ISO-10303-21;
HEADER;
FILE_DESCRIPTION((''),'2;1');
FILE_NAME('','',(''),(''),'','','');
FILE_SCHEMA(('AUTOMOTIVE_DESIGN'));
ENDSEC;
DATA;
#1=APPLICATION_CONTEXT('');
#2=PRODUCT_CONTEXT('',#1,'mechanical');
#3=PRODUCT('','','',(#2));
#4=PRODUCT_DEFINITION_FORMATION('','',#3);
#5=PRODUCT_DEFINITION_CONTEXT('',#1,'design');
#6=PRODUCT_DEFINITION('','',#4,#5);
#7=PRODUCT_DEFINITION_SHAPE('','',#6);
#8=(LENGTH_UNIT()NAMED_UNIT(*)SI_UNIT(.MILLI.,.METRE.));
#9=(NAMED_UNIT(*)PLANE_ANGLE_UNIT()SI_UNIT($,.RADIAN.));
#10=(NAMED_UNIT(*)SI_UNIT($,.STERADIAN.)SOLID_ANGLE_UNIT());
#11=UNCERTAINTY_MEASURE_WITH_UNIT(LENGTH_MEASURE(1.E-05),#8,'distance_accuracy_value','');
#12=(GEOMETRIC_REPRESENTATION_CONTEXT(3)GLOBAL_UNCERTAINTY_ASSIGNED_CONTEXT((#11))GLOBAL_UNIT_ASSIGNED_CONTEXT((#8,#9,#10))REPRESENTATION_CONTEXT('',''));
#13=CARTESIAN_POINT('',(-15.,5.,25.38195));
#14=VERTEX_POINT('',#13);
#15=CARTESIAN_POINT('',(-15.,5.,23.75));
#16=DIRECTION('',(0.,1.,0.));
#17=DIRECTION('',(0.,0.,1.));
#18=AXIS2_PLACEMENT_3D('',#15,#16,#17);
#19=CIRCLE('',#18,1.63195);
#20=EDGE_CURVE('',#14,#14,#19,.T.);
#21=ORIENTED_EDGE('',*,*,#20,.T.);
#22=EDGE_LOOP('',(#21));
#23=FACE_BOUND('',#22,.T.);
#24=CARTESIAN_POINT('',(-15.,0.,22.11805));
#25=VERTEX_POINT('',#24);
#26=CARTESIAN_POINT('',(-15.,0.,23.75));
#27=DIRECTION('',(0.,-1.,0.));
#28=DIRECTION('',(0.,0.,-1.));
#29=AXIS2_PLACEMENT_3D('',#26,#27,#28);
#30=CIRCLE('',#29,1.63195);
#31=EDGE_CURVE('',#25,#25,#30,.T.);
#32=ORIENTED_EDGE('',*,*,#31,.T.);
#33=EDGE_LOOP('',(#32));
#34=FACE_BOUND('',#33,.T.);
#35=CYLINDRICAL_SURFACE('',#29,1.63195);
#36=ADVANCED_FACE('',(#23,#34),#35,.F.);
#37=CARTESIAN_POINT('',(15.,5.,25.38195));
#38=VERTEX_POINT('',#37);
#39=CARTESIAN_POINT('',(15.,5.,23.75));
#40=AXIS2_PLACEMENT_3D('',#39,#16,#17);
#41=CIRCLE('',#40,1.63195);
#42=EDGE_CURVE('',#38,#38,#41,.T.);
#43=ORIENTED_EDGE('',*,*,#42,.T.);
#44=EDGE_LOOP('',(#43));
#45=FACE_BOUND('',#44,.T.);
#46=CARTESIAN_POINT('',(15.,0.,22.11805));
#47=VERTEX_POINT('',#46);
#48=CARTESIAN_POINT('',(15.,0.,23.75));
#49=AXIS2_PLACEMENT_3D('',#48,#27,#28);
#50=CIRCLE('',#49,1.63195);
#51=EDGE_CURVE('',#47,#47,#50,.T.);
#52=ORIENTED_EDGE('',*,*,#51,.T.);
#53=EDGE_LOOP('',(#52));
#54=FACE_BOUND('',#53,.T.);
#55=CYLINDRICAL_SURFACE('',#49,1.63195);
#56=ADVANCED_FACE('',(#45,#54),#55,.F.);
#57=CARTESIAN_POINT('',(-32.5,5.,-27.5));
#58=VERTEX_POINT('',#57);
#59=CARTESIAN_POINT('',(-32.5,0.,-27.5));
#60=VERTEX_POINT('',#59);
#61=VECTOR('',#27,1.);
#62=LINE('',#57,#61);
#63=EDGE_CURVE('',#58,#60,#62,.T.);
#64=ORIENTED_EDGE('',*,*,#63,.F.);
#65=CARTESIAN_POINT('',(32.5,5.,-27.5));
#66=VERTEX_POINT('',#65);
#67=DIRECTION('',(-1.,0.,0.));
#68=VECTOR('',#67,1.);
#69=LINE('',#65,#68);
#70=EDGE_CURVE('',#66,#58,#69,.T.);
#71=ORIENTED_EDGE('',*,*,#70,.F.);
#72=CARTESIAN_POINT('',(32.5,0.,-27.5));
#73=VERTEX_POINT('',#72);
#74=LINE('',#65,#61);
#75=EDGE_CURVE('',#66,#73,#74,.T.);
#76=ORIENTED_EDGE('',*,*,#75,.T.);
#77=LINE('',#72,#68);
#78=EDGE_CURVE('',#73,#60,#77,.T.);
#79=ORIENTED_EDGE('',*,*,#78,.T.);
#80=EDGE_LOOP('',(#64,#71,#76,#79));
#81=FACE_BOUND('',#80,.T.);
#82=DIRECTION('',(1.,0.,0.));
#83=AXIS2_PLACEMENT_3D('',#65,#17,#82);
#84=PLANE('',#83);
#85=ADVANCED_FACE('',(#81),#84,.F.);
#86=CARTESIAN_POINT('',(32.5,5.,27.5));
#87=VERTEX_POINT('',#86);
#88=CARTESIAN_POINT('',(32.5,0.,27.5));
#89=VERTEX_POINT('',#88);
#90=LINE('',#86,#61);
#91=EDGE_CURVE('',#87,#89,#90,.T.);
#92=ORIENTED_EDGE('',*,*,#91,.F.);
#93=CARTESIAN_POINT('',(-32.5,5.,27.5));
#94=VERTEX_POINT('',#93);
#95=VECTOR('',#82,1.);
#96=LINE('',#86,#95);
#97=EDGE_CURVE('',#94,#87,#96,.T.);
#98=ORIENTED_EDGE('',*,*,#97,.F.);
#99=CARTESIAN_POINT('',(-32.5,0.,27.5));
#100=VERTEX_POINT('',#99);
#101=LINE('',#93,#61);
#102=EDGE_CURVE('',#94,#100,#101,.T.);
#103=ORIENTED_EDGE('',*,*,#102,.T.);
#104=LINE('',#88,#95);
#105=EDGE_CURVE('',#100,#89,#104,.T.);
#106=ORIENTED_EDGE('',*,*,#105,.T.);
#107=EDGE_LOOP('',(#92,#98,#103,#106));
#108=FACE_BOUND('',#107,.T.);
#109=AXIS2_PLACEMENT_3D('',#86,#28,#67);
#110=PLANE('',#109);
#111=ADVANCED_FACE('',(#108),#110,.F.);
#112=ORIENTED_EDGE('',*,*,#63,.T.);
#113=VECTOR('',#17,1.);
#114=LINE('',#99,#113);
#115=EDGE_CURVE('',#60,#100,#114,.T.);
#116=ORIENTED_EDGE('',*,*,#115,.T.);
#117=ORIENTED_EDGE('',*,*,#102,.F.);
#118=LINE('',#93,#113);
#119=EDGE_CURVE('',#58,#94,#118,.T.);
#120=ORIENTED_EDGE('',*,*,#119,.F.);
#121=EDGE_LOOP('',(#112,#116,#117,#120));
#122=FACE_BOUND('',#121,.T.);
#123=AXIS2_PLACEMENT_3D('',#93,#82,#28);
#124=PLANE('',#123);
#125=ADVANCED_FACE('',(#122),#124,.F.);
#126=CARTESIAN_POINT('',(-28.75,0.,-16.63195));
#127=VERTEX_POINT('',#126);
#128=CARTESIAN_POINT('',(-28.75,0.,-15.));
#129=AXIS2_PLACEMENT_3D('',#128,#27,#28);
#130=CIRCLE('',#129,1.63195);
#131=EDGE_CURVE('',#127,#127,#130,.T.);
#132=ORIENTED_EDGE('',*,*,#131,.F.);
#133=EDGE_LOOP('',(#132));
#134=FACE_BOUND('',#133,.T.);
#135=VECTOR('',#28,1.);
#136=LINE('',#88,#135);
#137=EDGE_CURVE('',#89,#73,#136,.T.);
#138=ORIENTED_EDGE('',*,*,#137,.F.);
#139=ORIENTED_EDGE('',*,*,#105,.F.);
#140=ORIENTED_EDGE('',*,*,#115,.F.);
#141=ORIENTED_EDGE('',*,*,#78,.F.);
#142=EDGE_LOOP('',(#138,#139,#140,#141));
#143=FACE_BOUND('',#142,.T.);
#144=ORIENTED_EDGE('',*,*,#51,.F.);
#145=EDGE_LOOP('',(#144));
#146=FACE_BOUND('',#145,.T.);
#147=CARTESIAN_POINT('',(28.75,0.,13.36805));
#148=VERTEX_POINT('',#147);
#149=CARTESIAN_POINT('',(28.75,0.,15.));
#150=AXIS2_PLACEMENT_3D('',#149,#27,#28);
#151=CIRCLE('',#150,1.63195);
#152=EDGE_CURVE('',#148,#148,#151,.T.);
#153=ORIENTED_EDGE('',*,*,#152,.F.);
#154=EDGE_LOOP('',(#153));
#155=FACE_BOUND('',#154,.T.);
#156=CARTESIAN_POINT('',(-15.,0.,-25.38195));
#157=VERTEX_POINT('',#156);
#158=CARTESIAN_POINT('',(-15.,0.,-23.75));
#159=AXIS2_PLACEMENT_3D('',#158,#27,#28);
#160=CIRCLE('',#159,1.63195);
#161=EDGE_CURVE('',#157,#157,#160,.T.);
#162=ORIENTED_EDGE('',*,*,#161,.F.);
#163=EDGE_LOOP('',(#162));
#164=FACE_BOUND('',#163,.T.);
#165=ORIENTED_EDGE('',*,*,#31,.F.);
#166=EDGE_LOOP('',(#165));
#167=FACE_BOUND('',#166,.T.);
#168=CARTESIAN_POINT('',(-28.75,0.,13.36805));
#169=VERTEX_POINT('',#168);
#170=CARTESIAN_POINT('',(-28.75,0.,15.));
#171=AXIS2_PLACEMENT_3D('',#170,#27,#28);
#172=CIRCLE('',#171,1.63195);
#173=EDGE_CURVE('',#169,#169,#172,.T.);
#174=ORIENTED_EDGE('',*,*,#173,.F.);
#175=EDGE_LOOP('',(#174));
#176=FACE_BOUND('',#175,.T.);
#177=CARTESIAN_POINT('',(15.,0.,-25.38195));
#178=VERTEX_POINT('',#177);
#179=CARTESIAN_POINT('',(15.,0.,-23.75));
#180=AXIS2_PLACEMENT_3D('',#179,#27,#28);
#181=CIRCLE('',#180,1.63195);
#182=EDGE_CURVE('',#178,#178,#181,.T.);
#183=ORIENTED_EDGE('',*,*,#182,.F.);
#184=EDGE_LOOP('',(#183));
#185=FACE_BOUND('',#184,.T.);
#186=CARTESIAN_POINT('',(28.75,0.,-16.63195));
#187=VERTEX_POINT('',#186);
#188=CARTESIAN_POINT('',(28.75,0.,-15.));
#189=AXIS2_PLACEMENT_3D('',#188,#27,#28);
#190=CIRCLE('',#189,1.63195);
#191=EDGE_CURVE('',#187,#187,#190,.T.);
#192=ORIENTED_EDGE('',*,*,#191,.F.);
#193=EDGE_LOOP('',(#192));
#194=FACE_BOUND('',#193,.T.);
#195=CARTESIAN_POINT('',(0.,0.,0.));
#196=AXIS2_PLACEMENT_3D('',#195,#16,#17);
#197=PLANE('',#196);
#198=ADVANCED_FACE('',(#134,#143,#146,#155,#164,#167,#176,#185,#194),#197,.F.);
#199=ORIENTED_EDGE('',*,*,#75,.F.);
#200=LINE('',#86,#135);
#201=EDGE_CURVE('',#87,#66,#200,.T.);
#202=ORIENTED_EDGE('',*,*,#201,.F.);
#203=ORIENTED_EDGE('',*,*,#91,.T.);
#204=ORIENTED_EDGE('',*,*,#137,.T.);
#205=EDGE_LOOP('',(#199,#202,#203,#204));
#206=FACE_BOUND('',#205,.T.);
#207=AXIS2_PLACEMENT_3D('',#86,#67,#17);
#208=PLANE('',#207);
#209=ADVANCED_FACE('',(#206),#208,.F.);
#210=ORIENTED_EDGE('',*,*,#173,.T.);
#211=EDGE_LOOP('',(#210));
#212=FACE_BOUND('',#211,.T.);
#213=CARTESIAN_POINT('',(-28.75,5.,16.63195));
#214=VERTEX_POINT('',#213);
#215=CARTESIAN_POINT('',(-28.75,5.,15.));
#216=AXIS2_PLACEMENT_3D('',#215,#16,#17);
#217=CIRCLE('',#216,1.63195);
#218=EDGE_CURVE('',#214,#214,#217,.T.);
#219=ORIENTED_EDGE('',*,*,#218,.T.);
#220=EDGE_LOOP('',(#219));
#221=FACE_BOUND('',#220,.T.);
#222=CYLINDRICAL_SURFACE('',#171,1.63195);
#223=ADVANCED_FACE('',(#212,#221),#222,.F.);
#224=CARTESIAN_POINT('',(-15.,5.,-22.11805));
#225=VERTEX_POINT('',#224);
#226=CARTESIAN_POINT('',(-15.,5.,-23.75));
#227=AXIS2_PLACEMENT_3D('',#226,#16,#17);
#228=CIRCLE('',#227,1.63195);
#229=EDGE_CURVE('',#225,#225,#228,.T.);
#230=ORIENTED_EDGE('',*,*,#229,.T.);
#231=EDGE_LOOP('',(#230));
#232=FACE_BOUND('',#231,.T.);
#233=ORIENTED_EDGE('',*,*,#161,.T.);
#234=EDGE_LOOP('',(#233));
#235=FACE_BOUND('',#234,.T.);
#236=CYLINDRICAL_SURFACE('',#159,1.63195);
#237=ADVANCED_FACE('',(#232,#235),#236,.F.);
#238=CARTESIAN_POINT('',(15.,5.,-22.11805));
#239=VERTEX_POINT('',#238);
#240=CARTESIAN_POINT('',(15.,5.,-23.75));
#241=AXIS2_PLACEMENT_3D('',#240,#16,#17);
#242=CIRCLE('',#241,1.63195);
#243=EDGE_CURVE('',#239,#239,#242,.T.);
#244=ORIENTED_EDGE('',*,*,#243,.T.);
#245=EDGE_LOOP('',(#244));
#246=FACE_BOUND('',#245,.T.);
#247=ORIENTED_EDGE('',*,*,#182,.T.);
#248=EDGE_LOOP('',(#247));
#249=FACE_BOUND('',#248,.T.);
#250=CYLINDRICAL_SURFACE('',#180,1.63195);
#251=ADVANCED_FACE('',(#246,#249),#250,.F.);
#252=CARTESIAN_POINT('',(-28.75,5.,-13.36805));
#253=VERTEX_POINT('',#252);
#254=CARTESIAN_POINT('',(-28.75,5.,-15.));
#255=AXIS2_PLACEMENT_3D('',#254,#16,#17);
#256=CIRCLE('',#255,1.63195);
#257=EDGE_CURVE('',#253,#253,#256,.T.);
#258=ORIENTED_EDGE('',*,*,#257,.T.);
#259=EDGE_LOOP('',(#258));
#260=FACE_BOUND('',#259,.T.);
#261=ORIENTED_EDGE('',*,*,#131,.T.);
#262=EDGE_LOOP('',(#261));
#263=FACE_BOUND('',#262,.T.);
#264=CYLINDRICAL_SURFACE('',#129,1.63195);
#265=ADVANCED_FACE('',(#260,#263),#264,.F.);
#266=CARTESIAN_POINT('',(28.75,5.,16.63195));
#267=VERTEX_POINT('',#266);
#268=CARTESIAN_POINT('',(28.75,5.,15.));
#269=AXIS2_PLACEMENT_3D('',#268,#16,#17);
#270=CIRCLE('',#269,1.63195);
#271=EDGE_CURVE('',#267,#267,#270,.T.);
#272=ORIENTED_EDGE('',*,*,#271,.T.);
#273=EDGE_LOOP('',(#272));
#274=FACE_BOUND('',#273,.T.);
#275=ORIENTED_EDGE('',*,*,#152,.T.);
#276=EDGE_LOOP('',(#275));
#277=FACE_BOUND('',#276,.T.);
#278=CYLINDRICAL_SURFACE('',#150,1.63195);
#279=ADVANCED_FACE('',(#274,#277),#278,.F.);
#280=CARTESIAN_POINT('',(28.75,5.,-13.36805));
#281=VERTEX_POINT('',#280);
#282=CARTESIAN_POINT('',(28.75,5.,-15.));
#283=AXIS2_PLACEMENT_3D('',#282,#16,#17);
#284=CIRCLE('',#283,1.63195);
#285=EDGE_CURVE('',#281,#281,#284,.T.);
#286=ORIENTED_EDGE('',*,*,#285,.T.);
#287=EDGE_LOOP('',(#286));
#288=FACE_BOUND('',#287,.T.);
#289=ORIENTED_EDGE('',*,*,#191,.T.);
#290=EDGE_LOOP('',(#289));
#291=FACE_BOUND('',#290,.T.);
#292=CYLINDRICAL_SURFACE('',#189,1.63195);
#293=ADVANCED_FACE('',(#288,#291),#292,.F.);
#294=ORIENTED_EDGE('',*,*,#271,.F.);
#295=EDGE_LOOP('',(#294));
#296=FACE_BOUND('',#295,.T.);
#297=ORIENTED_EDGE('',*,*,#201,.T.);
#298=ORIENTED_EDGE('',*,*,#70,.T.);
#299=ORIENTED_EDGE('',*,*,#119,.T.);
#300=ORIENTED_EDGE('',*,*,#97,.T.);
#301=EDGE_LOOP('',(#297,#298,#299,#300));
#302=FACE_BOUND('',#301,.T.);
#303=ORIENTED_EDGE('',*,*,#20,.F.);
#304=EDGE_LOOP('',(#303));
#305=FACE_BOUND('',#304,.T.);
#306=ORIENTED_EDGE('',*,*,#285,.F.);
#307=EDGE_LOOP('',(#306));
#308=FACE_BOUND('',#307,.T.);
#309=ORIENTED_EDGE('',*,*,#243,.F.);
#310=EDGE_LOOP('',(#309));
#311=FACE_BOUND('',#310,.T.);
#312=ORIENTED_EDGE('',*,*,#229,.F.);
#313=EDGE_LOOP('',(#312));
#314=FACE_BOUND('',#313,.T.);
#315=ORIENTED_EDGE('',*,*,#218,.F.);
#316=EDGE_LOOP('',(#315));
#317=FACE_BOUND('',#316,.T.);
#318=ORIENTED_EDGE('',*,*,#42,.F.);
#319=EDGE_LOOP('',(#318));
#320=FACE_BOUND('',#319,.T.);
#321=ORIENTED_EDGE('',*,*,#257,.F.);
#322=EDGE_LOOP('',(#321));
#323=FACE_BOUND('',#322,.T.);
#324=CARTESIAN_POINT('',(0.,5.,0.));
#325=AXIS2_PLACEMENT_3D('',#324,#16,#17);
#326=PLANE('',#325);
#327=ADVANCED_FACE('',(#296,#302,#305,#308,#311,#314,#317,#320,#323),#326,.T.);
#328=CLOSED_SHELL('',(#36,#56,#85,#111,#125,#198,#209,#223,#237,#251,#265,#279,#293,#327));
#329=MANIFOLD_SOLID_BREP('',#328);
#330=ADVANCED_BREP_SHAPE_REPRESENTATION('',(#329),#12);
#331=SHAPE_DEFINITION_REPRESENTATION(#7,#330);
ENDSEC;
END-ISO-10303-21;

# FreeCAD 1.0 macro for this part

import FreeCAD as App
import Part
import Sketcher

doc = App.newDocument("Part")
body = doc.addObject("PartDesign::Body", "Body")

# Sketch on XZ plane
sketch1 = body.newObject("Sketcher::SketchObject", "Sketch")
sketch1.AttachmentSupport = (doc.getObject("XZ_Plane"), [""])
sketch1.MapMode = "FlatFace"
sketch1.addGeometry(Part.LineSegment(App.Vector(-32.5, -27.5, 0), App.Vector(-32.5, 27.5, 0)), False)
sketch1.addGeometry(Part.LineSegment(App.Vector(-32.5, 27.5, 0), App.Vector(32.5, 27.5, 0)), False)
sketch1.addGeometry(Part.LineSegment(App.Vector(32.5, 27.5, 0), App.Vector(32.5, -27.5, 0)), False)
sketch1.addGeometry(Part.LineSegment(App.Vector(32.5, -27.5, 0), App.Vector(-32.5, -27.5, 0)), False)
sketch1.addConstraint(Sketcher.Constraint("Coincident", 0, 2, 1, 1))
sketch1.addConstraint(Sketcher.Constraint("Coincident", 1, 2, 2, 1))
sketch1.addConstraint(Sketcher.Constraint("Coincident", 2, 2, 3, 1))
sketch1.addConstraint(Sketcher.Constraint("Coincident", 3, 2, 0, 1))
sketch1.addConstraint(Sketcher.Constraint("Vertical", 0))
sketch1.addConstraint(Sketcher.Constraint("Horizontal", 1))
sketch1.addConstraint(Sketcher.Constraint("Vertical", 2))
sketch1.addConstraint(Sketcher.Constraint("Horizontal", 3))
sketch1.addConstraint(Sketcher.Constraint("Symmetric", 0, 2, 2, 2, -1, 1))
sketch1.addConstraint(Sketcher.Constraint("DistanceX", 1, 1, 1, 2, 65.0))
sketch1.addConstraint(Sketcher.Constraint("DistanceY", 0, 1, 0, 2, 55.0))
pad1 = body.newObject("PartDesign::Pad", "Pad")
pad1.Profile = sketch1
pad1.Length = 5
pad1.Reversed = True

# Sketch on XZ plane
sketch2 = body.newObject("Sketcher::SketchObject", "Sketch001")
sketch2.AttachmentSupport = (doc.getObject("XZ_Plane"), [""])
sketch2.MapMode = "FlatFace"
sketch2.addGeometry(Part.Circle(App.Vector(28.75, -15, 0), App.Vector(0, 0, 1), 1.63195), False)
sketch2.addGeometry(Part.Circle(App.Vector(15, -23.75, 0), App.Vector(0, 0, 1), 1.63195), False)
sketch2.addGeometry(Part.Circle(App.Vector(-15, -23.75, 0), App.Vector(0, 0, 1), 1.63195), False)
sketch2.addGeometry(Part.Circle(App.Vector(-28.75, -15, 0), App.Vector(0, 0, 1), 1.63195), False)
sketch2.addGeometry(Part.Circle(App.Vector(-28.75, 15, 0), App.Vector(0, 0, 1), 1.63195), False)
sketch2.addGeometry(Part.Circle(App.Vector(-15, 23.75, 0), App.Vector(0, 0, 1), 1.63195), False)
sketch2.addGeometry(Part.Circle(App.Vector(15, 23.75, 0), App.Vector(0, 0, 1), 1.63195), False)
sketch2.addGeometry(Part.Circle(App.Vector(28.75, 15, 0), App.Vector(0, 0, 1), 1.63195), False)
sketch2.addConstraint(Sketcher.Constraint("Equal", 0, 1))
sketch2.addConstraint(Sketcher.Constraint("Equal", 1, 2))
sketch2.addConstraint(Sketcher.Constraint("Equal", 2, 3))
sketch2.addConstraint(Sketcher.Constraint("Equal", 3, 4))
sketch2.addConstraint(Sketcher.Constraint("Equal", 4, 5))
sketch2.addConstraint(Sketcher.Constraint("Equal", 5, 6))
sketch2.addConstraint(Sketcher.Constraint("Equal", 6, 7))
sketch2.addConstraint(Sketcher.Constraint("Symmetric", 0, 3, 4, 3, -1, 1))
sketch2.addConstraint(Sketcher.Constraint("Symmetric", 1, 3, 5, 3, -1, 1))
sketch2.addConstraint(Sketcher.Constraint("Symmetric", 2, 3, 6, 3, -1, 1))
sketch2.addConstraint(Sketcher.Constraint("Symmetric", 3, 3, 7, 3, -1, 1))
sketch2.addConstraint(Sketcher.Constraint("Symmetric", 1, 3, 2, 3, -2))
sketch2.addConstraint(Sketcher.Constraint("Symmetric", 0, 3, 3, 3, -2))
sketch2.addConstraint(Sketcher.Constraint("DistanceY", 0, 3, -1, 1, 15.0))
sketch2.addConstraint(Sketcher.Constraint("DistanceX", -1, 1, 1, 3, 15.0))
sketch2.addConstraint(Sketcher.Constraint("Diameter", 0, 3.2639))
sketch2.addConstraint(Sketcher.Constraint("DistanceX", 3, 3, 0, 3, 57.5))
sketch2.addConstraint(Sketcher.Constraint("DistanceY", 2, 3, 5, 3, 47.5))
doc.recompute()
hole = body.newObject("PartDesign::Hole", "Hole")
hole.Profile = sketch2
hole.ThreadType = "None"
hole.Diameter = 3.2639
hole.DepthType = "ThroughAll"

doc.recompute()
